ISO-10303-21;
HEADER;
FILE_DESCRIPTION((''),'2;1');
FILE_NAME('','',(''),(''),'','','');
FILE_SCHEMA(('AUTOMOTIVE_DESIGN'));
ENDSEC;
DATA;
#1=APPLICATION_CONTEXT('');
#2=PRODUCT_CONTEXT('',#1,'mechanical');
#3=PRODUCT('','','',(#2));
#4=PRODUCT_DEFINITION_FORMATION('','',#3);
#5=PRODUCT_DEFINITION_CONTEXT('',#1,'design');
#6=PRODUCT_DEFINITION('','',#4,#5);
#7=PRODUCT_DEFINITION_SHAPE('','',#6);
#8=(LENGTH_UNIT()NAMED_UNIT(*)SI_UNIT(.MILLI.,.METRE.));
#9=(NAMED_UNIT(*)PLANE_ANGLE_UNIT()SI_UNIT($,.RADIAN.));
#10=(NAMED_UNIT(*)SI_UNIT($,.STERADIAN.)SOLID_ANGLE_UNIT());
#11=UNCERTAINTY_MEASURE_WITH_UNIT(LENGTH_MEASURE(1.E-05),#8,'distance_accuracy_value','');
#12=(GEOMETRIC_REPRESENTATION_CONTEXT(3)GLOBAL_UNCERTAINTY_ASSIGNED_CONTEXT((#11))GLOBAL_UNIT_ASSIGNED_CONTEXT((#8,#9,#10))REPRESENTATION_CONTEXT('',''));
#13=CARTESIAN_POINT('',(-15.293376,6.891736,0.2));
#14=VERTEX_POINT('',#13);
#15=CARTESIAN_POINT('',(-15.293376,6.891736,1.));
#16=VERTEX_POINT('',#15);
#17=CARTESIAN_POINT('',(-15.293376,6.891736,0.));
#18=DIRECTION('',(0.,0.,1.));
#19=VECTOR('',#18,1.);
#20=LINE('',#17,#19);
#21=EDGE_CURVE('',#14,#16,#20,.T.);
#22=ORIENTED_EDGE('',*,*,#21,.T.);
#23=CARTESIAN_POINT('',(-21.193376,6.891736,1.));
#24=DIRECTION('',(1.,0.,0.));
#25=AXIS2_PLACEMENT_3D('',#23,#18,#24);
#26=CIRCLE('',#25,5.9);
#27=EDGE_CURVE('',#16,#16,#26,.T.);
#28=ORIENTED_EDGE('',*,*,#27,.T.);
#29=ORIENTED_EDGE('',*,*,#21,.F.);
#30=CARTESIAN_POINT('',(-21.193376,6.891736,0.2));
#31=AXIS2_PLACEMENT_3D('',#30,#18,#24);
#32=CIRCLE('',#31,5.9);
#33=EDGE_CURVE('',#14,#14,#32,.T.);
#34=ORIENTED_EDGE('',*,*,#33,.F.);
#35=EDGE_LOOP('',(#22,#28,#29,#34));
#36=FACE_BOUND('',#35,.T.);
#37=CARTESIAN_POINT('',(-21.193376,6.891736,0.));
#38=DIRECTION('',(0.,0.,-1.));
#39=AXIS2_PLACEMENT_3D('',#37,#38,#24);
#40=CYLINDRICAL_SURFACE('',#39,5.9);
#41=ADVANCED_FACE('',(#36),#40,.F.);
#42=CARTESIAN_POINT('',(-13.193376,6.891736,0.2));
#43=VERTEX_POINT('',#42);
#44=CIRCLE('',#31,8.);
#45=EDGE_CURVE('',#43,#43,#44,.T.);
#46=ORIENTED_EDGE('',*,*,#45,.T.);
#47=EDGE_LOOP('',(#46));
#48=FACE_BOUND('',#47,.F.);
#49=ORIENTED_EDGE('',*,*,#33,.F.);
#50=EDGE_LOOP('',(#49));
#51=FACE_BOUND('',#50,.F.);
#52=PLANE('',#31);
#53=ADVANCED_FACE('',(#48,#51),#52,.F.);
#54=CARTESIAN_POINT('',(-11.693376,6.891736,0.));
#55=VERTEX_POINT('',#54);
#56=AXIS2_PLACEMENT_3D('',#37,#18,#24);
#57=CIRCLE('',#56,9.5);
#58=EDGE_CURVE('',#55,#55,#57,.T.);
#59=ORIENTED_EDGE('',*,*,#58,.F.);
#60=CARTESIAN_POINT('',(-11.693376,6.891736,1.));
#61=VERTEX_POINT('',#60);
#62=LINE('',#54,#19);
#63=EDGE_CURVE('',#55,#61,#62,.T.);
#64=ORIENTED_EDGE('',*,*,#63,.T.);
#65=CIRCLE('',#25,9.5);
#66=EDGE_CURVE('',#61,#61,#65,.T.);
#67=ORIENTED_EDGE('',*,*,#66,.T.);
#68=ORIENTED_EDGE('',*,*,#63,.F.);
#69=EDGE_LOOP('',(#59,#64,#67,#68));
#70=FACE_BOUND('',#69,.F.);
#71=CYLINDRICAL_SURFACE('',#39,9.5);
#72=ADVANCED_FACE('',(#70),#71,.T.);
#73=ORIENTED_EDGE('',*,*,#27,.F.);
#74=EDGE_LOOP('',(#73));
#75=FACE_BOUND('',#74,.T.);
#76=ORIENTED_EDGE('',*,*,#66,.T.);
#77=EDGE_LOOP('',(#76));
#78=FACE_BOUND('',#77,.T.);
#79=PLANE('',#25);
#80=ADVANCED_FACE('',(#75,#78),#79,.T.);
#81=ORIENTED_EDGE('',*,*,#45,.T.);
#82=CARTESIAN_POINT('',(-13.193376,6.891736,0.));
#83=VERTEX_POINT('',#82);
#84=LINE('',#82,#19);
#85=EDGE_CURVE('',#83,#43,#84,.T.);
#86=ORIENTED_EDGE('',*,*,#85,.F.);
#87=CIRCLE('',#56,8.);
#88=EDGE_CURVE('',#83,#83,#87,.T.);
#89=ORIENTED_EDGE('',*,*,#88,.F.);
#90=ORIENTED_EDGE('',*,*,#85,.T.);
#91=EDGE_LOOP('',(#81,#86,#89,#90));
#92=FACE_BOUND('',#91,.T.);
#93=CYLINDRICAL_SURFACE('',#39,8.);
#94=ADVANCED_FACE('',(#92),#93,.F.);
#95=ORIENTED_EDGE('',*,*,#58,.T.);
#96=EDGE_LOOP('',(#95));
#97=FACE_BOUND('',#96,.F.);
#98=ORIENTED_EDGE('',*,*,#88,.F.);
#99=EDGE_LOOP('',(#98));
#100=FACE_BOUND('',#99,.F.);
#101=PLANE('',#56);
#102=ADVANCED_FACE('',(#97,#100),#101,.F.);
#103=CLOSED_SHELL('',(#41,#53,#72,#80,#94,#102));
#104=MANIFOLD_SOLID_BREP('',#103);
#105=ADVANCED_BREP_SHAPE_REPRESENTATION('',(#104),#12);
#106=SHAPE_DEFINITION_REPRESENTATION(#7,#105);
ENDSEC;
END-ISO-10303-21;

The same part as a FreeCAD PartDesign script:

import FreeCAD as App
import Part
import Sketcher
Q = App.Units.Quantity

doc = App.newDocument("Part")
body = doc.addObject("PartDesign::Body", "Body")

# Sketch on XY plane
sketch1 = body.newObject("Sketcher::SketchObject", "Sketch")
sketch1.AttachmentSupport = (doc.getObject("XY_Plane"), [""])
sketch1.MapMode = "FlatFace"
sketch1.addGeometry(Part.Circle(App.Vector(-21, 7, 0), App.Vector(0, 0, 1), 10), False)
sketch1.addGeometry(Part.Circle(App.Vector(-21, 7, 0), App.Vector(0, 0, 1), 6), False)
sketch1.addConstraint(Sketcher.Constraint("Coincident", 1, 3, 0, 3))
sketch1.addConstraint(Sketcher.Constraint("Diameter", 0, Q("19 mm")))
sketch1.addConstraint(Sketcher.Constraint("Diameter", 1, Q("11.8 mm")))
sketch1.addConstraint(Sketcher.Constraint("DistanceX", 0, 3, -1, 1, Q("21.193376 mm")))
sketch1.addConstraint(Sketcher.Constraint("DistanceY", -1, 1, 0, 3, Q("6.891736 mm")))
pad1 = body.newObject("PartDesign::Pad", "Pad")
pad1.Profile = sketch1
pad1.Length = 1

# Sketch on XY plane
sketch2 = body.newObject("Sketcher::SketchObject", "Sketch001")
sketch2.AttachmentSupport = (doc.getObject("XY_Plane"), [""])
sketch2.MapMode = "FlatFace"
sketch2.addGeometry(Part.Circle(App.Vector(-21, 7, 0), App.Vector(0, 0, 1), 8), False)
sketch2.addGeometry(Part.Circle(App.Vector(-21, 7, 0), App.Vector(0, 0, 1), 6), False)
sketch2.addConstraint(Sketcher.Constraint("Coincident", 1, 3, 0, 3))
sketch2.addConstraint(Sketcher.Constraint("Diameter", 0, Q("16 mm")))
sketch2.addConstraint(Sketcher.Constraint("Diameter", 1, Q("11.8 mm")))
sketch2.addConstraint(Sketcher.Constraint("DistanceX", 0, 3, -1, 1, Q("21.193376 mm")))
sketch2.addConstraint(Sketcher.Constraint("DistanceY", -1, 1, 0, 3, Q("6.891736 mm")))
pocket1 = body.newObject("PartDesign::Pocket", "Pocket")
pocket1.Profile = sketch2
pocket1.Length = 0.2
pocket1.Reversed = True

doc.recompute()
